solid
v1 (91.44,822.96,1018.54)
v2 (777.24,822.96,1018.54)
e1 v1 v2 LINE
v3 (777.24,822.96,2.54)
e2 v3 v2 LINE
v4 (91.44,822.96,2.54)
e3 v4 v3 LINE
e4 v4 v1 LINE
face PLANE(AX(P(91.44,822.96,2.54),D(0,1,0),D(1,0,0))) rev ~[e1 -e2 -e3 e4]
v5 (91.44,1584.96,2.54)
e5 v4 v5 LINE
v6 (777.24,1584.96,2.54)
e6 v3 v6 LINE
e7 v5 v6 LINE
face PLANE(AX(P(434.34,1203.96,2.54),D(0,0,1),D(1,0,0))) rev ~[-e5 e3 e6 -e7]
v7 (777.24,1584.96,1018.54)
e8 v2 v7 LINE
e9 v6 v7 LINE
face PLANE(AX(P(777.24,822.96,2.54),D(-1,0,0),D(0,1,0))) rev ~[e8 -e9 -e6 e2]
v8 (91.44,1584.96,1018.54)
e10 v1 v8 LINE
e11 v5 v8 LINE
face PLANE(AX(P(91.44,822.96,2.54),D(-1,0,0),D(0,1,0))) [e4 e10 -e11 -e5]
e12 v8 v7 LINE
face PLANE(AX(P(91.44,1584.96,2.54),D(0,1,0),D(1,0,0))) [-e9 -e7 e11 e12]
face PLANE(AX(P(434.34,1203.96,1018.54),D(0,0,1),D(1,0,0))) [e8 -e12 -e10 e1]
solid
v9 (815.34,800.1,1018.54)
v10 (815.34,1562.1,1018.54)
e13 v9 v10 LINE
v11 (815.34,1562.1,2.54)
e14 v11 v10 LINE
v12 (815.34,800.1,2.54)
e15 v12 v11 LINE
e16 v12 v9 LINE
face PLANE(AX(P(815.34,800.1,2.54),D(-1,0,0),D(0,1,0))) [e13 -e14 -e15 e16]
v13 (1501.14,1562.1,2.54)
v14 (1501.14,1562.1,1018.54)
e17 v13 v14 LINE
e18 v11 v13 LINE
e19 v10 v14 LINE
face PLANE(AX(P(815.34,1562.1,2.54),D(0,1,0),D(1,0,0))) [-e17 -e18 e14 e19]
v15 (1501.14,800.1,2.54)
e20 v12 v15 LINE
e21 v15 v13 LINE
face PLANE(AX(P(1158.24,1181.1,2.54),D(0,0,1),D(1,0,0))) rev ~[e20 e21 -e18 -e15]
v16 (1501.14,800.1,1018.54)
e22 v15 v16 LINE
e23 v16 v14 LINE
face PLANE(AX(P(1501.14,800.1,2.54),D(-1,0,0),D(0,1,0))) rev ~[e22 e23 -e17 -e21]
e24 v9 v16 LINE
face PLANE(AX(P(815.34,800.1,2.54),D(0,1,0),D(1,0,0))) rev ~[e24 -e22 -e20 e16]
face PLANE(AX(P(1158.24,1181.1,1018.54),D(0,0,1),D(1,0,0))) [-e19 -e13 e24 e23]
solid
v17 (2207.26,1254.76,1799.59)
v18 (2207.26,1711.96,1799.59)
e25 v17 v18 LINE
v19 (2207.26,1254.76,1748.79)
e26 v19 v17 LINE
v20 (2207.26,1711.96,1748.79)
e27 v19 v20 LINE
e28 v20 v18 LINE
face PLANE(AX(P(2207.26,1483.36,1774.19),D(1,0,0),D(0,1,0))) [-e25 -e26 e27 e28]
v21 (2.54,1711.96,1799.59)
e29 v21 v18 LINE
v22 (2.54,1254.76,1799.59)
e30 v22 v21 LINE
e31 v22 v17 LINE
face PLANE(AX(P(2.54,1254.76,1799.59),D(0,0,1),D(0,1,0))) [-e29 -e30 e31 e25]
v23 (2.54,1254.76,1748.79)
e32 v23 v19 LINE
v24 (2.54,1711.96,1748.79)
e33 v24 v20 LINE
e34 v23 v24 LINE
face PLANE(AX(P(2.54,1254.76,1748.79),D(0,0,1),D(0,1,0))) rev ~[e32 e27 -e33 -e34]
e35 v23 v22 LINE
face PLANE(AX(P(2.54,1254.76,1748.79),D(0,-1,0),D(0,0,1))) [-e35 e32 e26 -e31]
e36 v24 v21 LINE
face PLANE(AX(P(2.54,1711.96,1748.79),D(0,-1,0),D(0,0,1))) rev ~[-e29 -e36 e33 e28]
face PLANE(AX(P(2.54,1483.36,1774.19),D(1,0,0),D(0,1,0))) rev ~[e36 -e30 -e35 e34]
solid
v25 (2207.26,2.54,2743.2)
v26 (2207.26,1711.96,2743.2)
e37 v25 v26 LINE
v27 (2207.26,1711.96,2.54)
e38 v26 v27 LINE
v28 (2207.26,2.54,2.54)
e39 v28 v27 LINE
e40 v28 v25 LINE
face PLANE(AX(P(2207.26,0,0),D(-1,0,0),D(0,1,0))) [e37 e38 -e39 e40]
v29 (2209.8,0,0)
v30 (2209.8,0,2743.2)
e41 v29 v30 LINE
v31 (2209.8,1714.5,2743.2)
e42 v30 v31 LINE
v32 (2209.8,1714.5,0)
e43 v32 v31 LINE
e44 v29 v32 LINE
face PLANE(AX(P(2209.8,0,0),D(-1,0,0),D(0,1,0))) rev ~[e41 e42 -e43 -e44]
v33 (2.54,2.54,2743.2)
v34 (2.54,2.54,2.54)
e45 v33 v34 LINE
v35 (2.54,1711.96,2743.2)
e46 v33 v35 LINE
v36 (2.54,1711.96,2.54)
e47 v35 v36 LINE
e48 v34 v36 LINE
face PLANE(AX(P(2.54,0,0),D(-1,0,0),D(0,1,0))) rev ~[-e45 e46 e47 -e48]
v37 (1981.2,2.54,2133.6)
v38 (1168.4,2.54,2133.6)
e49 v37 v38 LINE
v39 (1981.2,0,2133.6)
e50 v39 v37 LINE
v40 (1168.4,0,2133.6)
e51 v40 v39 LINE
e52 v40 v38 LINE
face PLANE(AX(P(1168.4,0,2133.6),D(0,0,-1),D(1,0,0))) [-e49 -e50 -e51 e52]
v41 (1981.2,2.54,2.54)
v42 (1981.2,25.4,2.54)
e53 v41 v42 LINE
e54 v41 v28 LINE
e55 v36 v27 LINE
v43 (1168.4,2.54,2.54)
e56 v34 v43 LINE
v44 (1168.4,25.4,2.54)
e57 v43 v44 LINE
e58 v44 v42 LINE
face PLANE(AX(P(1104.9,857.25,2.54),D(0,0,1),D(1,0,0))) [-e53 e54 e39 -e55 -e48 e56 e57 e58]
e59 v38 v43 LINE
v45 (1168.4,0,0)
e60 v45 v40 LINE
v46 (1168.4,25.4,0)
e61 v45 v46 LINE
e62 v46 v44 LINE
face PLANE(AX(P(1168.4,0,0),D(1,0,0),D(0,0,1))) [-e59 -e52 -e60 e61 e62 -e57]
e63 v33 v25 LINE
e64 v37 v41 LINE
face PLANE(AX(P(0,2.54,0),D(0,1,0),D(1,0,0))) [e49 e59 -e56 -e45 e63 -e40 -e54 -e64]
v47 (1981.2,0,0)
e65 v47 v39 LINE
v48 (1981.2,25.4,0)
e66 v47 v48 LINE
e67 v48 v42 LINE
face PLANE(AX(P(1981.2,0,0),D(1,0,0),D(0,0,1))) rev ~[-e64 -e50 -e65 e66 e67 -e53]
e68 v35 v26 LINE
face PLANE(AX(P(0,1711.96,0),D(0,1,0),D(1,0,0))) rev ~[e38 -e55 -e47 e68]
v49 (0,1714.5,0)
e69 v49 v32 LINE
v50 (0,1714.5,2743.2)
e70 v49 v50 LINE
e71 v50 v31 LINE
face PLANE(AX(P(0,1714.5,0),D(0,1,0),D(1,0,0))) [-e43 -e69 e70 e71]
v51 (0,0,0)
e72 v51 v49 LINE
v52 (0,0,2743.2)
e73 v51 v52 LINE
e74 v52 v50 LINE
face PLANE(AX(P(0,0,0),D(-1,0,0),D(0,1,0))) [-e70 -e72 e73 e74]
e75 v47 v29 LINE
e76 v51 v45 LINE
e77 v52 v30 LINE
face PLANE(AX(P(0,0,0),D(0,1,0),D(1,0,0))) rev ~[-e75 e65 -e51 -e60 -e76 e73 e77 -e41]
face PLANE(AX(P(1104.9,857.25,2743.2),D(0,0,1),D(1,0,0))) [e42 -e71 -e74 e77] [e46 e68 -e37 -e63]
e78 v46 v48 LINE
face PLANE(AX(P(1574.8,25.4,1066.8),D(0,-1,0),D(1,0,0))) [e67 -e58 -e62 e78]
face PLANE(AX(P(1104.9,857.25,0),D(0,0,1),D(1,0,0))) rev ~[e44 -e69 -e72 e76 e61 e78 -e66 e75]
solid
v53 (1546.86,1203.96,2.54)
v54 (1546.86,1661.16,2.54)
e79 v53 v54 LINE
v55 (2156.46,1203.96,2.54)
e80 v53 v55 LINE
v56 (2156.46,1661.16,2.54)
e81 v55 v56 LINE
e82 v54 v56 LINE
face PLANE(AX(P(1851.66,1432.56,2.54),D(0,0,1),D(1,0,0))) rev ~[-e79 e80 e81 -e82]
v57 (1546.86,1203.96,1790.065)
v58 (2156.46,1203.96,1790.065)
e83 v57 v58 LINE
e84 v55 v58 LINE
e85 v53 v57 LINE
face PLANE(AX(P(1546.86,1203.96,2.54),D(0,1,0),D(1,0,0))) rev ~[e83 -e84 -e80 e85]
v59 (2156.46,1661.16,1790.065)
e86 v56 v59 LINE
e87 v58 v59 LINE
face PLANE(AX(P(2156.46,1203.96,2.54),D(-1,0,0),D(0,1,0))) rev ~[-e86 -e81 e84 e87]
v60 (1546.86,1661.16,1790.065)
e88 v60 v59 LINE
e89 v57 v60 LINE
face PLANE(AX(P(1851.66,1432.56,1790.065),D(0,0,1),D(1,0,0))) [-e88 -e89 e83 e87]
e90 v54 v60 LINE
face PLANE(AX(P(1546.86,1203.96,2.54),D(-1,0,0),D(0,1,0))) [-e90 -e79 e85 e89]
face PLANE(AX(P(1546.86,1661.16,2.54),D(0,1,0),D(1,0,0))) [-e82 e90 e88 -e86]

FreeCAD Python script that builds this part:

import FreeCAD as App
import Part
import Sketcher

V = App.Vector
Q = App.Units.Quantity


def faces_at(feature, points):
    """Names of the faces that lie closest to the given points."""
    faces = feature.Shape.Faces
    near = lambda p: min(range(len(faces)), key=lambda i: faces[i].distToShape(Part.Vertex(*p))[0])
    return sorted({f"Face{near(p) + 1}" for p in points})

doc = App.newDocument("Part")
body = doc.addObject("PartDesign::Body", "Body")

sketch1 = doc.addObject("Sketcher::SketchObject", "Sketch")
body.addObject(sketch1)
sketch1.AttachmentSupport = (doc.XY_Plane, [""])
sketch1.MapMode = "FlatFace"
sketch1.addGeometry([
    Part.LineSegment(V(0, 1714, 0), V(0, 0, 0)),
    Part.LineSegment(V(0, 0, 0), V(2210, 0, 0)),
    Part.LineSegment(V(2210, 0, 0), V(2210, 1714, 0)),
    Part.LineSegment(V(2210, 1714, 0), V(0, 1714, 0)),
], False)
sketch1.addConstraint([
    Sketcher.Constraint("Coincident", 0, 2, 1, 1),
    Sketcher.Constraint("Coincident", 1, 2, 2, 1),
    Sketcher.Constraint("Coincident", 2, 2, 3, 1),
    Sketcher.Constraint("Coincident", 3, 2, 0, 1),
    Sketcher.Constraint("Vertical", 0),
    Sketcher.Constraint("Horizontal", 1),
    Sketcher.Constraint("Vertical", 2),
    Sketcher.Constraint("Horizontal", 3),
    Sketcher.Constraint("Coincident", 0, 2, -1, 1),
    Sketcher.Constraint("DistanceX", 1, 1, 1, 2, Q("87 in")),
    Sketcher.Constraint("DistanceY", 0, 2, 0, 1, Q("67.5 in")),
])
pad1 = doc.addObject("PartDesign::Pad", "Pad")
body.addObject(pad1)
pad1.Profile = sketch1
pad1.Length = Q("108 in")
doc.recompute()

thickness = doc.addObject("PartDesign::Thickness", "Thickness")
body.addObject(thickness)
thickness.Base = (pad1, faces_at(pad1, [(1104.9, 857.25, 2743.2)]))
thickness.Value = Q("0.1 in")
thickness.Reversed = True
thickness.Join = "Arc"

sketch2 = doc.addObject("Sketcher::SketchObject", "Sketch001")
body.addObject(sketch2)
sketch2.AttachmentSupport = (doc.XZ_Plane, [""])
sketch2.MapMode = "FlatFace"
sketch2.addGeometry([
    Part.LineSegment(V(1168, 2134, 0), V(1168, 0, 0)),
    Part.LineSegment(V(1168, 0, 0), V(1981, 0, 0)),
    Part.LineSegment(V(1981, 0, 0), V(1981, 2134, 0)),
    Part.LineSegment(V(1981, 2134, 0), V(1168, 2134, 0)),
], False)
sketch2.addConstraint([
    Sketcher.Constraint("Coincident", 0, 2, 1, 1),
    Sketcher.Constraint("Coincident", 1, 2, 2, 1),
    Sketcher.Constraint("Coincident", 2, 2, 3, 1),
    Sketcher.Constraint("Coincident", 3, 2, 0, 1),
    Sketcher.Constraint("Vertical", 0),
    Sketcher.Constraint("Horizontal", 1),
    Sketcher.Constraint("Vertical", 2),
    Sketcher.Constraint("Horizontal", 3),
    Sketcher.Constraint("PointOnObject", 0, 2, -1),
    Sketcher.Constraint("DistanceX", 1, 1, 1, 2, Q("32 in")),
    Sketcher.Constraint("DistanceY", 0, 2, 0, 1, Q("84 in")),
    Sketcher.Constraint("DistanceX", -1, 1, 0, 2, Q("46 in")),
])
pocket1 = doc.addObject("PartDesign::Pocket", "Pocket")
body.addObject(pocket1)
pocket1.Profile = sketch2
pocket1.Length = Q("1 in")
body2 = doc.addObject("PartDesign::Body", "Body001")

sketch3 = doc.addObject("Sketcher::SketchObject", "Sketch002")
body2.addObject(sketch3)
sketch3.AttachmentSupport = (doc.getObject("XY_Plane001"), [""])
sketch3.MapMode = "FlatFace"
sketch3.AttachmentOffset = App.Placement(V(0, 0, 0.1 * 25.4), App.Rotation())
sketch3.addGeometry([
    Part.LineSegment(V(91, 1585, 0), V(91, 823, 0)),
    Part.LineSegment(V(91, 823, 0), V(777, 823, 0)),
    Part.LineSegment(V(777, 823, 0), V(777, 1585, 0)),
    Part.LineSegment(V(777, 1585, 0), V(91, 1585, 0)),
], False)
sketch3.addConstraint([
    Sketcher.Constraint("Coincident", 0, 2, 1, 1),
    Sketcher.Constraint("Coincident", 1, 2, 2, 1),
    Sketcher.Constraint("Coincident", 2, 2, 3, 1),
    Sketcher.Constraint("Coincident", 3, 2, 0, 1),
    Sketcher.Constraint("Vertical", 0),
    Sketcher.Constraint("Horizontal", 1),
    Sketcher.Constraint("Vertical", 2),
    Sketcher.Constraint("Horizontal", 3),
    Sketcher.Constraint("DistanceX", 1, 1, 1, 2, Q("27 in")),
    Sketcher.Constraint("DistanceY", 0, 2, 0, 1, Q("30 in")),
    Sketcher.Constraint("DistanceX", -1, 1, 0, 2, Q("3.6 in")),
    Sketcher.Constraint("DistanceY", -1, 1, 0, 2, Q("32.4 in")),
])
pad2 = doc.addObject("PartDesign::Pad", "Pad001")
body2.addObject(pad2)
pad2.Profile = sketch3
pad2.Length = Q("40 in")
body3 = doc.addObject("PartDesign::Body", "Body002")

sketch4 = doc.addObject("Sketcher::SketchObject", "Sketch003")
body3.addObject(sketch4)
sketch4.AttachmentSupport = (doc.getObject("XY_Plane002"), [""])
sketch4.MapMode = "FlatFace"
sketch4.AttachmentOffset = App.Placement(V(0, 0, 0.1 * 25.4), App.Rotation())
sketch4.addGeometry([
    Part.LineSegment(V(815, 1562, 0), V(815, 800, 0)),
    Part.LineSegment(V(815, 800, 0), V(1501, 800, 0)),
    Part.LineSegment(V(1501, 800, 0), V(1501, 1562, 0)),
    Part.LineSegment(V(1501, 1562, 0), V(815, 1562, 0)),
], False)
sketch4.addConstraint([
    Sketcher.Constraint("Coincident", 0, 2, 1, 1),
    Sketcher.Constraint("Coincident", 1, 2, 2, 1),
    Sketcher.Constraint("Coincident", 2, 2, 3, 1),
    Sketcher.Constraint("Coincident", 3, 2, 0, 1),
    Sketcher.Constraint("Vertical", 0),
    Sketcher.Constraint("Horizontal", 1),
    Sketcher.Constraint("Vertical", 2),
    Sketcher.Constraint("Horizontal", 3),
    Sketcher.Constraint("DistanceX", 1, 1, 1, 2, Q("27 in")),
    Sketcher.Constraint("DistanceY", 0, 2, 0, 1, Q("30 in")),
    Sketcher.Constraint("DistanceX", -1, 1, 0, 2, Q("32.1 in")),
    Sketcher.Constraint("DistanceY", -1, 1, 0, 2, Q("31.5 in")),
])
pad3 = doc.addObject("PartDesign::Pad", "Pad002")
body3.addObject(pad3)
pad3.Profile = sketch4
pad3.Length = Q("40 in")
body4 = doc.addObject("PartDesign::Body", "Body003")

sketch5 = doc.addObject("Sketcher::SketchObject", "Sketch004")
body4.addObject(sketch5)
sketch5.AttachmentSupport = (doc.getObject("YZ_Plane003"), [""])
sketch5.MapMode = "FlatFace"
sketch5.AttachmentOffset = App.Placement(V(0, 0, 0.1 * 25.4), App.Rotation())
sketch5.addGeometry([
    Part.LineSegment(V(1255, 1800, 0), V(1255, 1749, 0)),
    Part.LineSegment(V(1255, 1749, 0), V(1712, 1749, 0)),
    Part.LineSegment(V(1712, 1749, 0), V(1712, 1800, 0)),
    Part.LineSegment(V(1712, 1800, 0), V(1255, 1800, 0)),
], False)
sketch5.addConstraint([
    Sketcher.Constraint("Coincident", 0, 2, 1, 1),
    Sketcher.Constraint("Coincident", 1, 2, 2, 1),
    Sketcher.Constraint("Coincident", 2, 2, 3, 1),
    Sketcher.Constraint("Coincident", 3, 2, 0, 1),
    Sketcher.Constraint("Vertical", 0),
    Sketcher.Constraint("Horizontal", 1),
    Sketcher.Constraint("Vertical", 2),
    Sketcher.Constraint("Horizontal", 3),
    Sketcher.Constraint("DistanceX", 1, 1, 1, 2, Q("18 in")),
    Sketcher.Constraint("DistanceY", 0, 2, 0, 1, Q("2 in")),
    Sketcher.Constraint("DistanceX", -1, 1, 0, 2, Q("49.4 in")),
    Sketcher.Constraint("DistanceY", -1, 1, 0, 2, Q("68.85 in")),
])
pad4 = doc.addObject("PartDesign::Pad", "Pad003")
body4.addObject(pad4)
pad4.Profile = sketch5
pad4.Length = Q("86.8 in")
body5 = doc.addObject("PartDesign::Body", "Body004")

sketch6 = doc.addObject("Sketcher::SketchObject", "Sketch005")
body5.addObject(sketch6)
sketch6.AttachmentSupport = (doc.getObject("XY_Plane004"), [""])
sketch6.MapMode = "FlatFace"
sketch6.AttachmentOffset = App.Placement(V(0, 0, 0.1 * 25.4), App.Rotation())
sketch6.addGeometry([
    Part.LineSegment(V(1547, 1661, 0), V(1547, 1204, 0)),
    Part.LineSegment(V(1547, 1204, 0), V(2156, 1204, 0)),
    Part.LineSegment(V(2156, 1204, 0), V(2156, 1661, 0)),
    Part.LineSegment(V(2156, 1661, 0), V(1547, 1661, 0)),
], False)
sketch6.addConstraint([
    Sketcher.Constraint("Coincident", 0, 2, 1, 1),
    Sketcher.Constraint("Coincident", 1, 2, 2, 1),
    Sketcher.Constraint("Coincident", 2, 2, 3, 1),
    Sketcher.Constraint("Coincident", 3, 2, 0, 1),
    Sketcher.Constraint("Vertical", 0),
    Sketcher.Constraint("Horizontal", 1),
    Sketcher.Constraint("Vertical", 2),
    Sketcher.Constraint("Horizontal", 3),
    Sketcher.Constraint("DistanceX", 1, 1, 1, 2, Q("24 in")),
    Sketcher.Constraint("DistanceY", 0, 2, 0, 1, Q("18 in")),
    Sketcher.Constraint("DistanceX", -1, 1, 0, 2, Q("60.9 in")),
    Sketcher.Constraint("DistanceY", -1, 1, 0, 2, Q("47.4 in")),
])
pad5 = doc.addObject("PartDesign::Pad", "Pad004")
body5.addObject(pad5)
pad5.Profile = sketch6
pad5.Length = Q("70.375 in")

doc.recompute()
